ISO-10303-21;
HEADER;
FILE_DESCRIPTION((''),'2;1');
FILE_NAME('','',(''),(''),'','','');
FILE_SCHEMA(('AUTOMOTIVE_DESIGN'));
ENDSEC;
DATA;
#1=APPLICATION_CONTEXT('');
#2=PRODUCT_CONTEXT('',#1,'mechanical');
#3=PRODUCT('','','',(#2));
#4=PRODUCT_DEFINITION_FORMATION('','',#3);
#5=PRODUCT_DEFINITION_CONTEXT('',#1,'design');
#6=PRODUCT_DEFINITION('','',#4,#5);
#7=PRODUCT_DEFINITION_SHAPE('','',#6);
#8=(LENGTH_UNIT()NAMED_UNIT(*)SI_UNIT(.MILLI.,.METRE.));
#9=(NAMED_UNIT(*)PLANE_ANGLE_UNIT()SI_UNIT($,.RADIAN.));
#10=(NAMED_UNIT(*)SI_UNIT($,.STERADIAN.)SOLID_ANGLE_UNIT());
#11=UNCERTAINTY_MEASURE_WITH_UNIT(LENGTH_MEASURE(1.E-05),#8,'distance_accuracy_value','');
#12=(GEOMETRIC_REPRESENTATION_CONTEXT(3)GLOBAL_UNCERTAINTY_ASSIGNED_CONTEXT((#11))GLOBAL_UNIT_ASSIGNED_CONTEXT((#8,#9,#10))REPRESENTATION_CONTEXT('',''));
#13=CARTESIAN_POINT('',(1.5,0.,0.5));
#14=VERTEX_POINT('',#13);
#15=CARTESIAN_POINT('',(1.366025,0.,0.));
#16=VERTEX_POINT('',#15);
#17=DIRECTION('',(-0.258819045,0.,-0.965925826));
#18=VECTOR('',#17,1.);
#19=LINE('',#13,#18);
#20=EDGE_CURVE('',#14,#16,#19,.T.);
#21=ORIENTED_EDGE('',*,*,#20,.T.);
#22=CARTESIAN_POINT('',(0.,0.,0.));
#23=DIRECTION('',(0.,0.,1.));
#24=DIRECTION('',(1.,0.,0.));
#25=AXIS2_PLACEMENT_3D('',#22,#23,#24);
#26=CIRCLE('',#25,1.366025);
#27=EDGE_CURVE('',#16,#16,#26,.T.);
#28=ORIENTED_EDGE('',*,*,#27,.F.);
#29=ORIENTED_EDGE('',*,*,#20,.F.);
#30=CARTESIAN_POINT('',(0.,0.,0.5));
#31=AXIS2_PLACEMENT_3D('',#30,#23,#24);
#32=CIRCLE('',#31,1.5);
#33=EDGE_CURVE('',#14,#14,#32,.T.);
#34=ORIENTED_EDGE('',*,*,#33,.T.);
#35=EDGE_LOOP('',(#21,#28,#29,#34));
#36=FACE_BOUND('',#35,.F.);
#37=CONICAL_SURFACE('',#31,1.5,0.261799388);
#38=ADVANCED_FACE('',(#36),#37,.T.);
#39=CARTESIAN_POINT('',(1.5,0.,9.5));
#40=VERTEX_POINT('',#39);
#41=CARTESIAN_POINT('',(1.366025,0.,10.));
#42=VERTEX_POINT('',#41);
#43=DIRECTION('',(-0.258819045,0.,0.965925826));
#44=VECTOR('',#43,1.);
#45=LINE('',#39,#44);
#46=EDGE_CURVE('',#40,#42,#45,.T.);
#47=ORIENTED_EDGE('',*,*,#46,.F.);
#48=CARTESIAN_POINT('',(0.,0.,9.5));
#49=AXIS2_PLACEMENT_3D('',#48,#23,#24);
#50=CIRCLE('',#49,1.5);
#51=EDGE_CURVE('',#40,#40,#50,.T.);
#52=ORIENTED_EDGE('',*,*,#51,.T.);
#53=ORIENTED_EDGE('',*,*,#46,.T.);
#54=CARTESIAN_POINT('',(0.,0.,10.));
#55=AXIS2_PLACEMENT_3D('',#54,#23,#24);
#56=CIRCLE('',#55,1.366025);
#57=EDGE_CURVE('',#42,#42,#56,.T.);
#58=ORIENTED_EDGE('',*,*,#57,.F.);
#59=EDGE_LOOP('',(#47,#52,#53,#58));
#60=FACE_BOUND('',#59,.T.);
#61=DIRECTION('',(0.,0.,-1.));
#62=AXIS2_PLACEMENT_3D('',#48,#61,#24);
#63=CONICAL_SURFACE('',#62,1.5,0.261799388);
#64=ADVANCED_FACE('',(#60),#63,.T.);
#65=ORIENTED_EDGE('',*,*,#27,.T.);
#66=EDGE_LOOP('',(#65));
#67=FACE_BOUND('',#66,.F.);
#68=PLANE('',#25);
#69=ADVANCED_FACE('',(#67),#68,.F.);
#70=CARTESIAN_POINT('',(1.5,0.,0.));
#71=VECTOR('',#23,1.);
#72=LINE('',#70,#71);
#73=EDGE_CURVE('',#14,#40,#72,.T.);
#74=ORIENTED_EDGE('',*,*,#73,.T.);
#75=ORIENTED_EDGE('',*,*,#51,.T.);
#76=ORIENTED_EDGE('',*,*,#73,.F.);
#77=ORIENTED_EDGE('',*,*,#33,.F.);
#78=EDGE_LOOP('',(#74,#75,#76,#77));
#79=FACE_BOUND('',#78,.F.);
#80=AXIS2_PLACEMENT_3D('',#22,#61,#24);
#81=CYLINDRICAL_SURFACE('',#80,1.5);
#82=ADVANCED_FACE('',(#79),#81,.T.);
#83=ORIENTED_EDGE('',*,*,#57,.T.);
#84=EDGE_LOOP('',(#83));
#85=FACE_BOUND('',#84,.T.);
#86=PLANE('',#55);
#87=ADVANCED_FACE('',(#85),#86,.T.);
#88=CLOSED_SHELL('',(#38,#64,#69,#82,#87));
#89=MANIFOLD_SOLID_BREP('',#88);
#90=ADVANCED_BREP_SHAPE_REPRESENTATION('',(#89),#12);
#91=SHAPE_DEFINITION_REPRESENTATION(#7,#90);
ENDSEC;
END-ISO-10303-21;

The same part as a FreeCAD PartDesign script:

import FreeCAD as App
import Part
import Sketcher
from FreeCAD import Vector
Q = App.Units.Quantity


def edges_at(feature, points):
    """Names of the edges that pass closest to the given points."""
    edges = feature.Shape.Edges
    near = lambda p: min(range(len(edges)), key=lambda i: edges[i].distToShape(Part.Vertex(*p))[0])
    return sorted({f"Edge{near(p) + 1}" for p in points})

doc = App.newDocument("Part")
body = doc.addObject("PartDesign::Body", "Body")

# Sketch on XY plane
sketch1 = body.newObject("Sketcher::SketchObject", "Sketch")
sketch1.AttachmentSupport = (doc.getObject("XY_Plane"), [""])
sketch1.MapMode = "FlatFace"
sketch1.addGeometry(Part.Circle(Vector(0, 0, 0), Vector(0, 0, 1), 1.5), False)
sketch1.addConstraint(Sketcher.Constraint("Coincident", 0, 3, -1, 1))
sketch1.addConstraint(Sketcher.Constraint("Diameter", 0, Q("3 mm")))
pad1 = body.newObject("PartDesign::Pad", "Pad")
pad1.Profile = sketch1
pad1.Length = 10
doc.recompute()

chamfer = body.newObject("PartDesign::Chamfer", "Chamfer")
chamfer.Base = (pad1, edges_at(pad1, [(-1.5, 0, 0), (-1.5, 0, 10)]))
chamfer.ChamferType = "Distance and Angle"
chamfer.Size = 0.5
chamfer.Angle = 15

doc.recompute()
